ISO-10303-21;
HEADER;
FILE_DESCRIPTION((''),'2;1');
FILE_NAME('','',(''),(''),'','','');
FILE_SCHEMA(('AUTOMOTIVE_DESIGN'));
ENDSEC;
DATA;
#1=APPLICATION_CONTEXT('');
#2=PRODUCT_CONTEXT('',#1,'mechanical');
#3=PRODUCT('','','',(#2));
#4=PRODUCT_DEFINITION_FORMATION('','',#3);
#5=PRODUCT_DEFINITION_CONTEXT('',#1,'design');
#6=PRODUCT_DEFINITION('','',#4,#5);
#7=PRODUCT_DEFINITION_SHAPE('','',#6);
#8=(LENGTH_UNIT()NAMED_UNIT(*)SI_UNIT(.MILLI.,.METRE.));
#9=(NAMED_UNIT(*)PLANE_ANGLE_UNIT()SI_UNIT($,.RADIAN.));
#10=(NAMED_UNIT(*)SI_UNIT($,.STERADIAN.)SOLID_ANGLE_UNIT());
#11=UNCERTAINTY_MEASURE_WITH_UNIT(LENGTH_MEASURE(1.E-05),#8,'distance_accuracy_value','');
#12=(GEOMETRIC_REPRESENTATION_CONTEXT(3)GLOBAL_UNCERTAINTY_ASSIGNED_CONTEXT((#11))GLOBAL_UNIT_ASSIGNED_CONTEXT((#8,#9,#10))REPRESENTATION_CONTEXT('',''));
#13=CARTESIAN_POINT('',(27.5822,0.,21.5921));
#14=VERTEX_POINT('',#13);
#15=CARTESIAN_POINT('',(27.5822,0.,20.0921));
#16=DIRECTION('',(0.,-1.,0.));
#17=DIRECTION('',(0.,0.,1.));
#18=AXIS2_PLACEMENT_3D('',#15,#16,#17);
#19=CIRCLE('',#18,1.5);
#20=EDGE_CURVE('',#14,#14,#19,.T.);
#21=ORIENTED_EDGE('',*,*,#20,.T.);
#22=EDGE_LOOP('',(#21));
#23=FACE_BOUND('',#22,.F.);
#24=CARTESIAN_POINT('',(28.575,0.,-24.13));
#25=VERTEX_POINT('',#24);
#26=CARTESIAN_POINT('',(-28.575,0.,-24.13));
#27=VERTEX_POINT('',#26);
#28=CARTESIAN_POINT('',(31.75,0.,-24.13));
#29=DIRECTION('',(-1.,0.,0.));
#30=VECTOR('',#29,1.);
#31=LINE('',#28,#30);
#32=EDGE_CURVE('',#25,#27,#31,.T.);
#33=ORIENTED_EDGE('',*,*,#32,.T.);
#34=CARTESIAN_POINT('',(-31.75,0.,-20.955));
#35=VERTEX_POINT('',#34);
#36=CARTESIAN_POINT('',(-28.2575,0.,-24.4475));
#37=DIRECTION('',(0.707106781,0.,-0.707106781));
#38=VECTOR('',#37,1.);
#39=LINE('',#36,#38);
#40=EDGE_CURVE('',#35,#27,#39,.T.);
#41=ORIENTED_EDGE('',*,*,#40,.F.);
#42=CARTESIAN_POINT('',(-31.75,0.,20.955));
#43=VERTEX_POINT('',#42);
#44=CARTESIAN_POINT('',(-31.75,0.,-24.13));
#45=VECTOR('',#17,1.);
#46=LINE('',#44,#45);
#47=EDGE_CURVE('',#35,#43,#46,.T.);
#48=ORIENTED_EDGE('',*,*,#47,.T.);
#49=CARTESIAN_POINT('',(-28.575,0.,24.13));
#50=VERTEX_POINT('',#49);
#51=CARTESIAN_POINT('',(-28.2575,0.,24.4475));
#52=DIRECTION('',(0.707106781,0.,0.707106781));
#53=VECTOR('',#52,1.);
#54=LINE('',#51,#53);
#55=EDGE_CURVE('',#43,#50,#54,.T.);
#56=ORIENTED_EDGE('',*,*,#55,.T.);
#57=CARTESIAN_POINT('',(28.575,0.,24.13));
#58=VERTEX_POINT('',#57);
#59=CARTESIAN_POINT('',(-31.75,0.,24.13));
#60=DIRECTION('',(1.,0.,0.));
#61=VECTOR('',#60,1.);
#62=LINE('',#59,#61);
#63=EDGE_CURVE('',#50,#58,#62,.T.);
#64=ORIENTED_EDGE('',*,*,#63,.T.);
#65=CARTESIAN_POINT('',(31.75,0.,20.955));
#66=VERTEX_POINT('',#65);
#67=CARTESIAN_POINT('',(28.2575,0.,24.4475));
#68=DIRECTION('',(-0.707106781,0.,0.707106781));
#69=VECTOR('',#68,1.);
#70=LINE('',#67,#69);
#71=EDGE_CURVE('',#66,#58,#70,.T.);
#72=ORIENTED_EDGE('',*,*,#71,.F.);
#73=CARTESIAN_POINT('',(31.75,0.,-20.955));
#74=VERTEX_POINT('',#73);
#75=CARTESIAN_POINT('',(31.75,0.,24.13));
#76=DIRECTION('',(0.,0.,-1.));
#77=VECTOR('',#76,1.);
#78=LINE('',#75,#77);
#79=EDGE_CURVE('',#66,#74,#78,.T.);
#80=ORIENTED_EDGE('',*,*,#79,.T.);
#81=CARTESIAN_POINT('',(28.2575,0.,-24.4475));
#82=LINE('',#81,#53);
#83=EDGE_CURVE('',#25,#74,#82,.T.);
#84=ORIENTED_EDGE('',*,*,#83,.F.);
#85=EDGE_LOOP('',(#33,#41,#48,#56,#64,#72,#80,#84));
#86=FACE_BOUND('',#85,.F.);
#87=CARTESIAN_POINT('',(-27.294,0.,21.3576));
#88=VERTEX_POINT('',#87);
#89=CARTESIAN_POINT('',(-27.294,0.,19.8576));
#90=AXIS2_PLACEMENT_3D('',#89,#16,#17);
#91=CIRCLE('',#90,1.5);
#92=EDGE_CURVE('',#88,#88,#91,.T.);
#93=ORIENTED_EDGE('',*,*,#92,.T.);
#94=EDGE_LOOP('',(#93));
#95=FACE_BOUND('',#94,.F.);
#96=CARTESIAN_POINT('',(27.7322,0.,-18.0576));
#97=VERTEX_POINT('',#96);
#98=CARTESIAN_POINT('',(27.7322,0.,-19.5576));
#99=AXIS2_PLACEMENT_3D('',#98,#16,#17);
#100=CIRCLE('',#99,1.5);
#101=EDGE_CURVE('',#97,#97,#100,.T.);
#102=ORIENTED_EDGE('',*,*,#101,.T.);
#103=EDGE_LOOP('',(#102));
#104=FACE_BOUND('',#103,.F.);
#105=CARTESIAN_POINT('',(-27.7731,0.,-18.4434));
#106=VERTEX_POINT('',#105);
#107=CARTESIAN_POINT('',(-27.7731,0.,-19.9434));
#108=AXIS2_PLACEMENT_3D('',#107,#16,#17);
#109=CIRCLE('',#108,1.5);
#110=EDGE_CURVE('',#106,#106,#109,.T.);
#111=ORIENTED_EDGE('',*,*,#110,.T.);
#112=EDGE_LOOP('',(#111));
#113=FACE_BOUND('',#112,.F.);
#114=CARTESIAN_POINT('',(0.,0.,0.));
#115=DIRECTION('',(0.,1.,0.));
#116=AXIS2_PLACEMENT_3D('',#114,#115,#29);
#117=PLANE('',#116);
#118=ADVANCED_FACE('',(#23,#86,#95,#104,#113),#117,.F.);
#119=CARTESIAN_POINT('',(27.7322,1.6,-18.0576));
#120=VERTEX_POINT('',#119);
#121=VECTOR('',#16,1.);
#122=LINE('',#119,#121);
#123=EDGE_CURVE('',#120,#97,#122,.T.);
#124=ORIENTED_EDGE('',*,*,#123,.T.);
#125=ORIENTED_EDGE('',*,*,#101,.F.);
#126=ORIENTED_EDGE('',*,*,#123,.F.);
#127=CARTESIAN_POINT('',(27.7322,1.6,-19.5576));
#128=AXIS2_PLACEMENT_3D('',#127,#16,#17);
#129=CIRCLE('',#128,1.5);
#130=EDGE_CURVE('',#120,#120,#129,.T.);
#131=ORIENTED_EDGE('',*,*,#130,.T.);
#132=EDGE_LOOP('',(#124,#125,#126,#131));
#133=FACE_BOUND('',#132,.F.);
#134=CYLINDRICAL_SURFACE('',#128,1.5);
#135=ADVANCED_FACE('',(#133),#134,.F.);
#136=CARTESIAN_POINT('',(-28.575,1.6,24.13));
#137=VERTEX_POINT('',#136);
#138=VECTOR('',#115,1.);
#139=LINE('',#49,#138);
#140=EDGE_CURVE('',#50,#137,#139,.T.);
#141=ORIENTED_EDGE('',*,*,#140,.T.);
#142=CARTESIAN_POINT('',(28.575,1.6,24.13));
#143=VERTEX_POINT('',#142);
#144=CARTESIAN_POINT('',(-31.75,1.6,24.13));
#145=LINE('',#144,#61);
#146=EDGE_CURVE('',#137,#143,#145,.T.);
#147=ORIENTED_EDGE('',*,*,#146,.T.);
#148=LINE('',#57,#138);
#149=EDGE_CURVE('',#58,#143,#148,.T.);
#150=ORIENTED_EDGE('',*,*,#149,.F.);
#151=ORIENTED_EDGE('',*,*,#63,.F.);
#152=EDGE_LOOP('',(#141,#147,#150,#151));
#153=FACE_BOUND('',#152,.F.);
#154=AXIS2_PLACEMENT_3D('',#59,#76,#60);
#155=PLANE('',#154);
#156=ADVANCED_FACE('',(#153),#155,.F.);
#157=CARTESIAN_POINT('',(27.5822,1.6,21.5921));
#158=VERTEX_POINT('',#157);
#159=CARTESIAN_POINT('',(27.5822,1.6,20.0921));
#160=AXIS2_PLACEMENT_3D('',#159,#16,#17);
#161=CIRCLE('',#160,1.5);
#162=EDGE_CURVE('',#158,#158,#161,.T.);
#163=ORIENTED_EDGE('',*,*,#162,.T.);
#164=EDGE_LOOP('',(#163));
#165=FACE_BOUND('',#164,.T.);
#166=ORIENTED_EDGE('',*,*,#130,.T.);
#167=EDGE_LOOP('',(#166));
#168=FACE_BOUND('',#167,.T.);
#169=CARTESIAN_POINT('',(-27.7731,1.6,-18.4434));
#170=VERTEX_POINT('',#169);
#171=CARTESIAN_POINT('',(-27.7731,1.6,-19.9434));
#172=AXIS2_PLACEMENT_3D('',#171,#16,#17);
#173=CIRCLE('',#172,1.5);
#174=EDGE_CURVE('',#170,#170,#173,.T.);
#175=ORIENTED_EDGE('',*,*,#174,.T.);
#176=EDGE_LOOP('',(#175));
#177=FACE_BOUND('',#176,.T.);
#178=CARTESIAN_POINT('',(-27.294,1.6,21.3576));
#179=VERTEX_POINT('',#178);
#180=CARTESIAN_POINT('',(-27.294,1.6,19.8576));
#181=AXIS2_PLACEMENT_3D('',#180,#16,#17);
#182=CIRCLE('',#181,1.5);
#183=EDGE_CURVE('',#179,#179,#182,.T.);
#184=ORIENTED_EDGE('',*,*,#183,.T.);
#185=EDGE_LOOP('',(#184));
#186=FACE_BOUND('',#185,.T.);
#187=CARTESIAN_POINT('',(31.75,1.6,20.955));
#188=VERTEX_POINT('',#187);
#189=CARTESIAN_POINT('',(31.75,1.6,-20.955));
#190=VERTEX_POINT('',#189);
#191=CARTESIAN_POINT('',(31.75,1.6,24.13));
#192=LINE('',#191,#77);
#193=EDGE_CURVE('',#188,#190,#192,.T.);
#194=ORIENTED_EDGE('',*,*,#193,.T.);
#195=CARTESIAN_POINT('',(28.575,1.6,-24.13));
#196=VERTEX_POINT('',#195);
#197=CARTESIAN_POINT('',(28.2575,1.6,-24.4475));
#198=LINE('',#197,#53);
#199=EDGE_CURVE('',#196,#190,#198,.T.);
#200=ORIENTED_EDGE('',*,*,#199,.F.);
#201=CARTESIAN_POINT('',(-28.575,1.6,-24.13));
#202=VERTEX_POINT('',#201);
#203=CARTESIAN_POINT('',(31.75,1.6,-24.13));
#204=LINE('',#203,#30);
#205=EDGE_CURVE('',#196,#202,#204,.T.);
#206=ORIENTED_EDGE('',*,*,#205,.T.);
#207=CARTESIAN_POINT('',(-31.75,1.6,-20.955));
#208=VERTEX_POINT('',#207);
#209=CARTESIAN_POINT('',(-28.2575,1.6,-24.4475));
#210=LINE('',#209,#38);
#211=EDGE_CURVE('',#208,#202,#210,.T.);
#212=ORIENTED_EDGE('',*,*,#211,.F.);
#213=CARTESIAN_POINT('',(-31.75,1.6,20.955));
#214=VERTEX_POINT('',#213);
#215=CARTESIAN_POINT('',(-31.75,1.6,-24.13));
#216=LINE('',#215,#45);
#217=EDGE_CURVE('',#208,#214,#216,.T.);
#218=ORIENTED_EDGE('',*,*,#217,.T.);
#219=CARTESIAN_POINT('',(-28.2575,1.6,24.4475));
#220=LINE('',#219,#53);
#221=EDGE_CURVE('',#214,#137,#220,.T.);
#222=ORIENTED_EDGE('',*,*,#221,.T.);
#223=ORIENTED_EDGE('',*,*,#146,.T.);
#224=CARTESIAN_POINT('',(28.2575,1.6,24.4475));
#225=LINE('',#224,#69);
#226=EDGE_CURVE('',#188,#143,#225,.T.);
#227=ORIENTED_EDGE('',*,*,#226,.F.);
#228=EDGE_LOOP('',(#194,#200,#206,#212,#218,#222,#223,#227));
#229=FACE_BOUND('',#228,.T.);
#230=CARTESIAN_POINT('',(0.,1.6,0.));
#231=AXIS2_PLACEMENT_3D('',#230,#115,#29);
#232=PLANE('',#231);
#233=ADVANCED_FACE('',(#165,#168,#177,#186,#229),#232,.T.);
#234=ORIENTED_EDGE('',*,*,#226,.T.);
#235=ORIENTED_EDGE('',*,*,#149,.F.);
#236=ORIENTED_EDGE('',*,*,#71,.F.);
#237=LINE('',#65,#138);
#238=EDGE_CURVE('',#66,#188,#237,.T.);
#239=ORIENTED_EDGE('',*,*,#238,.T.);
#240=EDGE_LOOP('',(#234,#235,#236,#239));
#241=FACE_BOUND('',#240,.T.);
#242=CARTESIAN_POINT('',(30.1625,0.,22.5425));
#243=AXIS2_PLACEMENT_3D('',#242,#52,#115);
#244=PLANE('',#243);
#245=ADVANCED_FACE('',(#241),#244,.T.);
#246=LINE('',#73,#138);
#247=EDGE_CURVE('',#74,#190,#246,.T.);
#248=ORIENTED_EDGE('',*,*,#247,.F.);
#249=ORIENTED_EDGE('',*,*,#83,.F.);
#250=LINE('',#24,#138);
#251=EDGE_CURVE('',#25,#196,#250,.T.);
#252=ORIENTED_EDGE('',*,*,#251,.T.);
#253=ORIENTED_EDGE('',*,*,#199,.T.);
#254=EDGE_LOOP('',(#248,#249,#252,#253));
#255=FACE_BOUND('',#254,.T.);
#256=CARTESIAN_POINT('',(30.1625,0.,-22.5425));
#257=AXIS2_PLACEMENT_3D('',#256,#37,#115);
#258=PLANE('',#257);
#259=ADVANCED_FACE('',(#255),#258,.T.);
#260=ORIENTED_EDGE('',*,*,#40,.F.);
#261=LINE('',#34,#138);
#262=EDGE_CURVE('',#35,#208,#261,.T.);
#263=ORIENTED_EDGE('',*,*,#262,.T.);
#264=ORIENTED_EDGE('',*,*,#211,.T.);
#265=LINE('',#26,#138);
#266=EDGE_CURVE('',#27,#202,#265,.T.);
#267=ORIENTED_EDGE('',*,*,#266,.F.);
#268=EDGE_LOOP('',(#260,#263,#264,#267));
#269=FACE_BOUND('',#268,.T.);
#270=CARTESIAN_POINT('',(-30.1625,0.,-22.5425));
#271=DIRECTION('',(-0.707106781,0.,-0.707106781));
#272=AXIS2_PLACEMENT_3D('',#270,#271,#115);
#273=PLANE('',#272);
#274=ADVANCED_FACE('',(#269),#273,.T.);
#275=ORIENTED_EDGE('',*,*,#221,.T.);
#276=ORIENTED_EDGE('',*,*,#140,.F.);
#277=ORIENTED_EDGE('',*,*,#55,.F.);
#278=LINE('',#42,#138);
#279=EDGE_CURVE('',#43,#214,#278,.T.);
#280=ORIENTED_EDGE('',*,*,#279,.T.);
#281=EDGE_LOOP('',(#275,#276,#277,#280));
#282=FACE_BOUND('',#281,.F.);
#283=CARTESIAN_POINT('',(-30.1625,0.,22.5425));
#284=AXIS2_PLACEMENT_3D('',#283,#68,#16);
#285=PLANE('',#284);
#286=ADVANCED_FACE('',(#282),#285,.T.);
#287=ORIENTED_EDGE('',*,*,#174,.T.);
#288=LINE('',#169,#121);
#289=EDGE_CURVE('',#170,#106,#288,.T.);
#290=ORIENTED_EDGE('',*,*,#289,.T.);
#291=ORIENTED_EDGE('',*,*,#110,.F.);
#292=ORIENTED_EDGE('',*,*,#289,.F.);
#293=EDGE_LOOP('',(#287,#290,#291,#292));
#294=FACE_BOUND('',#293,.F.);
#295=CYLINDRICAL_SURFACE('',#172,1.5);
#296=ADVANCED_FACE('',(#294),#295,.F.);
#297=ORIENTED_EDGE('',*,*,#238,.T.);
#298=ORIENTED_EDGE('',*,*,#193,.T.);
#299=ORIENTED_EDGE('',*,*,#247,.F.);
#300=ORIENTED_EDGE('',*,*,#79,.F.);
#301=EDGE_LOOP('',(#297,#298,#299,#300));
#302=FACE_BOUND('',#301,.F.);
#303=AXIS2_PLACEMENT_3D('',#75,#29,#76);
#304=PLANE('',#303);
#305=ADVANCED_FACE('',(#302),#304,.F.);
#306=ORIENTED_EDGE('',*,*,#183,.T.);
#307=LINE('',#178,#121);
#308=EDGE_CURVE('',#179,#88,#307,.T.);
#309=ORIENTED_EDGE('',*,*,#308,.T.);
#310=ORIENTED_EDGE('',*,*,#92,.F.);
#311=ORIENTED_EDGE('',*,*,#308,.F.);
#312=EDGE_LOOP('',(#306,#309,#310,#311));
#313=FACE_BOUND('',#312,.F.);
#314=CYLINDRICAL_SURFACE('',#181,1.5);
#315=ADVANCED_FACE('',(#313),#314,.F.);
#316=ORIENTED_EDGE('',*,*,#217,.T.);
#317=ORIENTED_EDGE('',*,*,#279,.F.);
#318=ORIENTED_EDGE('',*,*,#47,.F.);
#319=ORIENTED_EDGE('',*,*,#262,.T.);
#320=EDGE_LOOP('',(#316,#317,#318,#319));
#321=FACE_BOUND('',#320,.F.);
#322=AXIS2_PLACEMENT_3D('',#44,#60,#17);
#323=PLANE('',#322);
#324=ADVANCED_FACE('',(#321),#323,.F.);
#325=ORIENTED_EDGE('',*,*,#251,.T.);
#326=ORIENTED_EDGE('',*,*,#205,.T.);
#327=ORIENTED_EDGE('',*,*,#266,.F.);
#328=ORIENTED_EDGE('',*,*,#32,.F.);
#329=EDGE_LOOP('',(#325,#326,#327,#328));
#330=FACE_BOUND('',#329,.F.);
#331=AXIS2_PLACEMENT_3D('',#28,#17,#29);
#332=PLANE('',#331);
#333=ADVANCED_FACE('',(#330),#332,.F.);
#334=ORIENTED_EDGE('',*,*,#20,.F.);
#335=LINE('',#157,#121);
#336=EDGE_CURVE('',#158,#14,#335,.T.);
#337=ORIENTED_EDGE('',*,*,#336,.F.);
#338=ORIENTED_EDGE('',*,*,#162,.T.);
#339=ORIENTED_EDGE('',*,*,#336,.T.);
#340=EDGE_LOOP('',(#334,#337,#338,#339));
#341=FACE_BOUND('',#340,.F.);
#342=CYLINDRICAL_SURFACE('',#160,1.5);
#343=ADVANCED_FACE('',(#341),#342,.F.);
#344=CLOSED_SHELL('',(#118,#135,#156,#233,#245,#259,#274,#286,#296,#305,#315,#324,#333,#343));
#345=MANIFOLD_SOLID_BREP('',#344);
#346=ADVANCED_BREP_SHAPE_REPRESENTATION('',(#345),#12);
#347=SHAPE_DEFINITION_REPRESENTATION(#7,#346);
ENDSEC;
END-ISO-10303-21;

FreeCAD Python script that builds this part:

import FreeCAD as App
import Part
import Sketcher

V = App.Vector
Q = App.Units.Quantity


def edges_at(feature, points):
    """Names of the edges that pass closest to the given points."""
    edges = feature.Shape.Edges
    near = lambda p: min(range(len(edges)), key=lambda i: edges[i].distToShape(Part.Vertex(*p))[0])
    return sorted({f"Edge{near(p) + 1}" for p in points})


def add_polygon(sketch, points):
    """Adds a closed chain of lines whose ends are joined by coincident constraints."""
    first, n = sketch.GeometryCount, len(points)
    for a, b in zip(points, points[1:] + points[:1]):
        sketch.addGeometry(Part.LineSegment(App.Vector(*a, 0), App.Vector(*b, 0)), False)
    for i in range(n):
        sketch.addConstraint(Sketcher.Constraint("Coincident", first + i, 2, first + (i + 1) % n, 1))

doc = App.newDocument("Part")
body = doc.addObject("PartDesign::Body", "Body")

sketch1 = body.newObject("Sketcher::SketchObject", "Sketch")
sketch1.AttachmentSupport = (doc.getObject("XZ_Plane"), [""])
sketch1.MapMode = "FlatFace"
add_polygon(sketch1, [(-32, -24), (-32, 24), (32, 24), (32, -24)])
sketch1.addConstraint([
    Sketcher.Constraint("Vertical", 0),
    Sketcher.Constraint("Horizontal", 1),
    Sketcher.Constraint("Vertical", 2),
    Sketcher.Constraint("Horizontal", 3),
    Sketcher.Constraint("Symmetric", 0, 2, 2, 2, -1, 1),
    Sketcher.Constraint("DistanceX", 1, 1, 1, 2, Q("2.5 in")),
    Sketcher.Constraint("DistanceY", 0, 1, 0, 2, Q("1.9 in")),
])
pad1 = body.newObject("PartDesign::Pad", "Pad")
pad1.Profile = sketch1
pad1.Length = Q("0.0629921 in")
pad1.Reversed = True
doc.recompute()

chamfer = body.newObject("PartDesign::Chamfer", "Chamfer")
chamfer.Base = (pad1, edges_at(pad1, [
    (31.75, 0.8, 24.13),
    (31.75, 0.8, -24.13),
    (-31.75, 0.8, -24.13),
    (-31.75, 0.8, 24.13),
]))
chamfer.Size = Q("0.125 in")

sketch2 = body.newObject("Sketcher::SketchObject", "Sketch001")
sketch2.AttachmentSupport = (doc.getObject("XZ_Plane"), [""])
sketch2.MapMode = "FlatFace"
sketch2.AttachmentOffset = App.Placement(V(0, 0, -0.0629921 * 25.4), App.Rotation())
sketch2.addGeometry([
    Part.Circle(V(-27.8, -19.9, 0), V(0, 0, 1), 1.5),
    Part.Circle(V(27.7, -19.6, 0), V(0, 0, 1), 1.5),
    Part.Circle(V(-27.3, 19.9, 0), V(0, 0, 1), 1.5),
    Part.Circle(V(27.6, 20.1, 0), V(0, 0, 1), 1.5),
], False)
sketch2.addConstraint([
    Sketcher.Constraint("Equal", 0, 1),
    Sketcher.Constraint("Equal", 1, 2),
    Sketcher.Constraint("Equal", 2, 3),
    Sketcher.Constraint("Diameter", 0, Q("0.1181 in")),
    Sketcher.Constraint("DistanceY", 1, 3, 3, 3, Q("1.561 in")),
    Sketcher.Constraint("DistanceY", -1, 1, 2, 3, Q("0.7818 in")),
    Sketcher.Constraint("DistanceY", 0, 3, 1, 3, Q("0.0152 in")),
    Sketcher.Constraint("DistanceX", 3, 3, 1, 3, Q("0.0059 in")),
    Sketcher.Constraint("DistanceX", 0, 3, -1, 1, 27.773),
    Sketcher.Constraint("DistanceY", 0, 3, -1, 1, 19.9434),
    Sketcher.Constraint("DistanceX", -1, 1, 1, 3, 27.7322),
    Sketcher.Constraint("DistanceX", 2, 3, -1, 1, 27.294),
])
doc.recompute()
hole = body.newObject("PartDesign::Hole", "Hole")
hole.Profile = sketch2
hole.ThreadType = "None"
hole.Diameter = Q("0.1181102 in")
hole.DepthType = "Dimension"
hole.Depth = Q("3.75 in")
hole.DrillPoint = "Angled"
hole.DrillPointAngle = 118
hole.Reversed = True

doc.recompute()
